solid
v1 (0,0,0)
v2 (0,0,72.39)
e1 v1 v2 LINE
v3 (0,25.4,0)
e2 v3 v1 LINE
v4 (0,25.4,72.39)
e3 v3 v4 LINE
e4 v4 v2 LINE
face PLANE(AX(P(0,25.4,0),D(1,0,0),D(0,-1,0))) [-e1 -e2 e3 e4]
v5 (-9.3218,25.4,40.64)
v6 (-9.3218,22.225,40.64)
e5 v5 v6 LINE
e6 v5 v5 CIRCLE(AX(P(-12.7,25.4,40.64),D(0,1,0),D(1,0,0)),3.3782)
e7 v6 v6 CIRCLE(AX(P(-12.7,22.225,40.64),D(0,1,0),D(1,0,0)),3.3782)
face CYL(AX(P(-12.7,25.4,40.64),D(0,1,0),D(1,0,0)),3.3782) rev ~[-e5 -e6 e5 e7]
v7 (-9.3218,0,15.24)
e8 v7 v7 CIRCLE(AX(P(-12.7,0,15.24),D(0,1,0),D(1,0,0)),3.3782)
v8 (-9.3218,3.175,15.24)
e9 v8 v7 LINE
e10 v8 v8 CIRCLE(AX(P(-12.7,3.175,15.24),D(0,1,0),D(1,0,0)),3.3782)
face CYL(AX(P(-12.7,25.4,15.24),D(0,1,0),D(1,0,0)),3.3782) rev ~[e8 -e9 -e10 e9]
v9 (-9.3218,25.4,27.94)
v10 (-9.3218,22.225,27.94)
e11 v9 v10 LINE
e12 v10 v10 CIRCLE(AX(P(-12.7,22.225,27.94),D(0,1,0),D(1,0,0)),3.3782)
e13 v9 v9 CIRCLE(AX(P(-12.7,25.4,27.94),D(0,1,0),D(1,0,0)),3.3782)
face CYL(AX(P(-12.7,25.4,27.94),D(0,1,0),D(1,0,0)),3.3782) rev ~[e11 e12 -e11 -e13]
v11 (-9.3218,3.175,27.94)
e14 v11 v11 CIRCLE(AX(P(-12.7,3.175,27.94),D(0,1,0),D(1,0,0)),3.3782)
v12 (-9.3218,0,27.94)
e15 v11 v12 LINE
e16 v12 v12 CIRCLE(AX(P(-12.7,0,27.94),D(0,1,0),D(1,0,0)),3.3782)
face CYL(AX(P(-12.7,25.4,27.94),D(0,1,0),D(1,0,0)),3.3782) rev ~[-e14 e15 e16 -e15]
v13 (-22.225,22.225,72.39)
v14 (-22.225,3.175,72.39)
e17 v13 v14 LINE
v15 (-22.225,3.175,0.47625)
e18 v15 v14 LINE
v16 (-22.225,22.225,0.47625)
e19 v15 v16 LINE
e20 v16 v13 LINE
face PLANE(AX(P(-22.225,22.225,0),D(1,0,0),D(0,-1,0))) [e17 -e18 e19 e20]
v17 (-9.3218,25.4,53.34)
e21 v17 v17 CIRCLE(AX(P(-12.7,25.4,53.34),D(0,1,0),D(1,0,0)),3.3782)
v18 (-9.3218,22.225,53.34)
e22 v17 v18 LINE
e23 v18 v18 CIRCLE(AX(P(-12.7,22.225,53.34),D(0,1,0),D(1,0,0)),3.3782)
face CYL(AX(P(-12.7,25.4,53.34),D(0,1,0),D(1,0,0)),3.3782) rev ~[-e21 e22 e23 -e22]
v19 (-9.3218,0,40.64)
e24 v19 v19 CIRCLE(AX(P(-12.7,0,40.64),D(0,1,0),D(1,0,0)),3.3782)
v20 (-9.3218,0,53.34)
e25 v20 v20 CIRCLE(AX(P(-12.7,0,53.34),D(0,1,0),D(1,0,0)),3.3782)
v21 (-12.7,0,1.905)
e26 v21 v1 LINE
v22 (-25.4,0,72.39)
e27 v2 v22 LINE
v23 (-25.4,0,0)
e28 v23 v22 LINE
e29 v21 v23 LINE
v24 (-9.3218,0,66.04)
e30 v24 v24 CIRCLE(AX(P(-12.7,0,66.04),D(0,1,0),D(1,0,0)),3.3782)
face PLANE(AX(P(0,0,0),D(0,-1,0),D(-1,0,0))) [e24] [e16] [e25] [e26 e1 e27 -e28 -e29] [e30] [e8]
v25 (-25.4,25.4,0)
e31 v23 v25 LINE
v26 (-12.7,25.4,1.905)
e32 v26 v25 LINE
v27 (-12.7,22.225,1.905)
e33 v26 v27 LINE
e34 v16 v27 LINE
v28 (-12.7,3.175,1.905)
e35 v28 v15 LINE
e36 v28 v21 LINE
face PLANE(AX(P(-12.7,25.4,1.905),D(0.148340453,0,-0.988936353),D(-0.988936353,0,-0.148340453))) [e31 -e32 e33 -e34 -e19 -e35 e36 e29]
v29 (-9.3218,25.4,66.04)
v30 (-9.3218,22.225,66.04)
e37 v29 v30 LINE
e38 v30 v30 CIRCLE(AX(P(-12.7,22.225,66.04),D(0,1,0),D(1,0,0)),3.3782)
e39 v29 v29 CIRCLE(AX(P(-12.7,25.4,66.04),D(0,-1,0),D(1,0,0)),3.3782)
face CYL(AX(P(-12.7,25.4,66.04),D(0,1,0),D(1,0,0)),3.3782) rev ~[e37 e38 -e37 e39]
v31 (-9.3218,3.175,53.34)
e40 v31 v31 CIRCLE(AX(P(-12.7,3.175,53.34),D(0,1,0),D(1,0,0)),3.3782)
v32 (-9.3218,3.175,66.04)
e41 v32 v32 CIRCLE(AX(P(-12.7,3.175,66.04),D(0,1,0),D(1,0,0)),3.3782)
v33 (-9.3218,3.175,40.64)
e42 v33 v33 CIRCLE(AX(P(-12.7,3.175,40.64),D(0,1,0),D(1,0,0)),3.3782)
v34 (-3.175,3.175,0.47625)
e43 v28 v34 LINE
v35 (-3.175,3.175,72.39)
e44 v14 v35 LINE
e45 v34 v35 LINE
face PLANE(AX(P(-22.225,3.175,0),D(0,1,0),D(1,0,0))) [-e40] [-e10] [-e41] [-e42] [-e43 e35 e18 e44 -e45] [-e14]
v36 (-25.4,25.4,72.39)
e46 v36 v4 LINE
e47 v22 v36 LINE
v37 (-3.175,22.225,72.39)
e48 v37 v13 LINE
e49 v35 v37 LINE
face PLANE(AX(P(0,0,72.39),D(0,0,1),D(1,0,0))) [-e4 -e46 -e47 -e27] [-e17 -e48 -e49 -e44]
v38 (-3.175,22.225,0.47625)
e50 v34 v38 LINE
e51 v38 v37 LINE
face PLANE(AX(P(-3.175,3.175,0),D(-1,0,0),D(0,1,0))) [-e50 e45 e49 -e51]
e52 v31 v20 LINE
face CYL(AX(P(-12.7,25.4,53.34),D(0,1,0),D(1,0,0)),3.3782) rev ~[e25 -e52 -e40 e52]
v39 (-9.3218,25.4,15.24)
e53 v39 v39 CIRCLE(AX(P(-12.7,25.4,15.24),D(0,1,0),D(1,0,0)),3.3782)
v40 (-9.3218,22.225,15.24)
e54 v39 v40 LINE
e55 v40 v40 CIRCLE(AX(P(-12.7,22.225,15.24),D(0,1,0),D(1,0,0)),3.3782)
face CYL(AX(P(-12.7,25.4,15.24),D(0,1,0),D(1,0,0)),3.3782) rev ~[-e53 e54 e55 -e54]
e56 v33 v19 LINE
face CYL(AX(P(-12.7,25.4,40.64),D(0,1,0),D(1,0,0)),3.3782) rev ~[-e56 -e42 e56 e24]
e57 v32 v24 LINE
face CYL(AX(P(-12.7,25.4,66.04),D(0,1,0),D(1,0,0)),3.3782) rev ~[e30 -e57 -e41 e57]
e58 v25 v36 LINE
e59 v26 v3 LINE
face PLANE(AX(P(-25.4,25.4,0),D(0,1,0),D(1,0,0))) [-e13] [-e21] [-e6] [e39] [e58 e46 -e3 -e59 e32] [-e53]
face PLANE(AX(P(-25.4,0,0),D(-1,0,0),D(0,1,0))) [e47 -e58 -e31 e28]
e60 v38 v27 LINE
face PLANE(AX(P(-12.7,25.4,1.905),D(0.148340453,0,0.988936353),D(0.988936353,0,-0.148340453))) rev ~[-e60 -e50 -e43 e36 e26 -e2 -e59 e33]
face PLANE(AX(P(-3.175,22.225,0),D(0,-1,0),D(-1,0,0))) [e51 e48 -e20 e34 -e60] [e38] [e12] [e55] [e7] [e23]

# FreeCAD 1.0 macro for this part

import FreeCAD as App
import Part
import Sketcher
from FreeCAD import Vector
Q = App.Units.Quantity

doc = App.newDocument("Part")
params = doc.addObject("Spreadsheet::Sheet", "Params")
for row, (alias, value) in enumerate([
    ("sketch1_width", "1 in"),
    ("pad1_length", "2.85 in"),
    ("sketch2_width", "1 in"),
    ("pocket1_length", "1 in"),
    ("sketch3_diameter", "0.266 in"),
    ("pocket2_length", "1 in"),
], start=1):
    params.set(f"A{row}", alias)
    params.set(f"B{row}", "=" + value)
    params.setAlias(f"B{row}", alias)

body = doc.addObject("PartDesign::Body", "Body")

sketch1 = body.newObject("Sketcher::SketchObject", "Sketch")
sketch1.AttachmentSupport = (doc.getObject("XY_Plane"), [""])
sketch1.MapMode = "FlatFace"
sketch1.addGeometry(Part.LineSegment(Vector(-25.4, 0, 0), Vector(0, 0, 0)), False)
sketch1.addGeometry(Part.LineSegment(Vector(0, 0, 0), Vector(0, 25.4, 0)), False)
sketch1.addGeometry(Part.LineSegment(Vector(0, 25.4, 0), Vector(-25.4, 25.4, 0)), False)
sketch1.addGeometry(Part.LineSegment(Vector(-25.4, 25.4, 0), Vector(-25.4, 0, 0)), False)
sketch1.addGeometry(Part.LineSegment(Vector(-22.225, 22.225, 0), Vector(-3.175, 22.225, 0)), False)
sketch1.addGeometry(Part.LineSegment(Vector(-3.175, 22.225, 0), Vector(-3.175, 3.175, 0)), False)
sketch1.addGeometry(Part.LineSegment(Vector(-3.175, 3.175, 0), Vector(-22.225, 3.175, 0)), False)
sketch1.addGeometry(Part.LineSegment(Vector(-22.225, 3.175, 0), Vector(-22.225, 22.225, 0)), False)
sketch1.addConstraint(Sketcher.Constraint("Coincident", 0, 2, 1, 1))
sketch1.addConstraint(Sketcher.Constraint("Coincident", 1, 2, 2, 1))
sketch1.addConstraint(Sketcher.Constraint("Coincident", 2, 2, 3, 1))
sketch1.addConstraint(Sketcher.Constraint("Coincident", 3, 2, 0, 1))
sketch1.addConstraint(Sketcher.Constraint("Coincident", 4, 2, 5, 1))
sketch1.addConstraint(Sketcher.Constraint("Coincident", 5, 2, 6, 1))
sketch1.addConstraint(Sketcher.Constraint("Coincident", 6, 2, 7, 1))
sketch1.addConstraint(Sketcher.Constraint("Coincident", 7, 2, 4, 1))
sketch1.addConstraint(Sketcher.Constraint("Horizontal", 0))
sketch1.addConstraint(Sketcher.Constraint("Vertical", 1))
sketch1.addConstraint(Sketcher.Constraint("Horizontal", 2))
sketch1.addConstraint(Sketcher.Constraint("Vertical", 3))
sketch1.addConstraint(Sketcher.Constraint("Horizontal", 4))
sketch1.addConstraint(Sketcher.Constraint("Vertical", 5))
sketch1.addConstraint(Sketcher.Constraint("Horizontal", 6))
sketch1.addConstraint(Sketcher.Constraint("Vertical", 7))
sketch1.addConstraint(Sketcher.Constraint("Coincident", 0, 2, -1, 1))
sketch1.addConstraint(Sketcher.Constraint("Equal", 2, 1))
sketch1.addConstraint(Sketcher.Constraint("Equal", 6, 5))
sketch1.addConstraint(Sketcher.Constraint("DistanceX", 0, 1, 0, 2, Q("1 in")))
sketch1.addConstraint(Sketcher.Constraint("DistanceX", 4, 2, -1, 1, Q("0.125 in")))
sketch1.addConstraint(Sketcher.Constraint("DistanceY", -1, 1, 5, 2, Q("0.125 in")))
sketch1.addConstraint(Sketcher.Constraint("DistanceY", 4, 2, 1, 2, Q("0.125 in")))
sketch1.setExpression("Constraints[19]", "Params.sketch1_width")
pad1 = body.newObject("PartDesign::Pad", "Pad")
pad1.Profile = sketch1
pad1.setExpression("Length", "Params.pad1_length")

sketch2 = body.newObject("Sketcher::SketchObject", "Sketch001")
sketch2.AttachmentSupport = (doc.getObject("XZ_Plane"), [""])
sketch2.MapMode = "FlatFace"
sketch2.AttachmentOffset = App.Placement(Vector(0, 0, -1 * 25.4), App.Rotation())
sketch2.addGeometry(Part.LineSegment(Vector(-25.4, 0, 0), Vector(-12.7, 1.905, 0)), False)
sketch2.addGeometry(Part.LineSegment(Vector(-12.7, 1.905, 0), Vector(0, 0, 0)), False)
sketch2.addGeometry(Part.LineSegment(Vector(0, 0, 0), Vector(-25.4, 0, 0)), False)
sketch2.addConstraint(Sketcher.Constraint("Coincident", 0, 2, 1, 1))
sketch2.addConstraint(Sketcher.Constraint("Coincident", 1, 2, 2, 1))
sketch2.addConstraint(Sketcher.Constraint("Coincident", 2, 2, 0, 1))
sketch2.addConstraint(Sketcher.Constraint("Horizontal", 2))
sketch2.addConstraint(Sketcher.Constraint("Coincident", 1, 2, -1, 1))
sketch2.addConstraint(Sketcher.Constraint("Equal", 0, 1))
sketch2.addConstraint(Sketcher.Constraint("DistanceX", 2, 2, 2, 1, Q("1 in")))
sketch2.addConstraint(Sketcher.Constraint("DistanceY", -1, 1, 0, 2, Q("0.075 in")))
sketch2.setExpression("Constraints[6]", "Params.sketch2_width")
pocket1 = body.newObject("PartDesign::Pocket", "Pocket")
pocket1.Profile = sketch2
pocket1.setExpression("Length", "Params.pocket1_length")
pocket1.Reversed = True

sketch3 = body.newObject("Sketcher::SketchObject", "Sketch002")
sketch3.AttachmentSupport = (doc.getObject("XZ_Plane"), [""])
sketch3.MapMode = "FlatFace"
sketch3.AttachmentOffset = App.Placement(Vector(0, 0, -1 * 25.4), App.Rotation())
sketch3.addGeometry(Part.Circle(Vector(-12.7, 66.04, 0), Vector(0, 0, 1), 3.3782), False)
sketch3.addGeometry(Part.Circle(Vector(-12.7, 53.34, 0), Vector(0, 0, 1), 3.3782), False)
sketch3.addGeometry(Part.Circle(Vector(-12.7, 40.64, 0), Vector(0, 0, 1), 3.3782), False)
sketch3.addGeometry(Part.Circle(Vector(-12.7, 27.94, 0), Vector(0, 0, 1), 3.3782), False)
sketch3.addGeometry(Part.Circle(Vector(-12.7, 15.24, 0), Vector(0, 0, 1), 3.3782), False)
sketch3.addConstraint(Sketcher.Constraint("Equal", 0, 1))
sketch3.addConstraint(Sketcher.Constraint("Equal", 1, 2))
sketch3.addConstraint(Sketcher.Constraint("Equal", 2, 3))
sketch3.addConstraint(Sketcher.Constraint("Equal", 3, 4))
sketch3.addConstraint(Sketcher.Constraint("Vertical", 0, 3, 1, 3))
sketch3.addConstraint(Sketcher.Constraint("Vertical", 1, 3, 2, 3))
sketch3.addConstraint(Sketcher.Constraint("Vertical", 2, 3, 3, 3))
sketch3.addConstraint(Sketcher.Constraint("Vertical", 3, 3, 4, 3))
sketch3.addConstraint(Sketcher.Constraint("Diameter", 0, Q("0.266 in")))
sketch3.addConstraint(Sketcher.Constraint("DistanceY", 2, 3, 0, 3, Q("1 in")))
sketch3.addConstraint(Sketcher.Constraint("DistanceY", 3, 3, 1, 3, Q("1 in")))
sketch3.addConstraint(Sketcher.Constraint("DistanceY", 4, 3, 2, 3, Q("1 in")))
sketch3.addConstraint(Sketcher.Constraint("DistanceX", 0, 3, -1, 1, Q("0.5 in")))
sketch3.addConstraint(Sketcher.Constraint("DistanceY", 1, 3, 0, 3, Q("0.5 in")))
sketch3.addConstraint(Sketcher.Constraint("DistanceY", -1, 1, 0, 3, Q("2.6 in")))
sketch3.setExpression("Constraints[8]", "Params.sketch3_diameter")
pocket2 = body.newObject("PartDesign::Pocket", "Pocket001")
pocket2.Profile = sketch3
pocket2.setExpression("Length", "Params.pocket2_length")
pocket2.Reversed = True

doc.recompute()
